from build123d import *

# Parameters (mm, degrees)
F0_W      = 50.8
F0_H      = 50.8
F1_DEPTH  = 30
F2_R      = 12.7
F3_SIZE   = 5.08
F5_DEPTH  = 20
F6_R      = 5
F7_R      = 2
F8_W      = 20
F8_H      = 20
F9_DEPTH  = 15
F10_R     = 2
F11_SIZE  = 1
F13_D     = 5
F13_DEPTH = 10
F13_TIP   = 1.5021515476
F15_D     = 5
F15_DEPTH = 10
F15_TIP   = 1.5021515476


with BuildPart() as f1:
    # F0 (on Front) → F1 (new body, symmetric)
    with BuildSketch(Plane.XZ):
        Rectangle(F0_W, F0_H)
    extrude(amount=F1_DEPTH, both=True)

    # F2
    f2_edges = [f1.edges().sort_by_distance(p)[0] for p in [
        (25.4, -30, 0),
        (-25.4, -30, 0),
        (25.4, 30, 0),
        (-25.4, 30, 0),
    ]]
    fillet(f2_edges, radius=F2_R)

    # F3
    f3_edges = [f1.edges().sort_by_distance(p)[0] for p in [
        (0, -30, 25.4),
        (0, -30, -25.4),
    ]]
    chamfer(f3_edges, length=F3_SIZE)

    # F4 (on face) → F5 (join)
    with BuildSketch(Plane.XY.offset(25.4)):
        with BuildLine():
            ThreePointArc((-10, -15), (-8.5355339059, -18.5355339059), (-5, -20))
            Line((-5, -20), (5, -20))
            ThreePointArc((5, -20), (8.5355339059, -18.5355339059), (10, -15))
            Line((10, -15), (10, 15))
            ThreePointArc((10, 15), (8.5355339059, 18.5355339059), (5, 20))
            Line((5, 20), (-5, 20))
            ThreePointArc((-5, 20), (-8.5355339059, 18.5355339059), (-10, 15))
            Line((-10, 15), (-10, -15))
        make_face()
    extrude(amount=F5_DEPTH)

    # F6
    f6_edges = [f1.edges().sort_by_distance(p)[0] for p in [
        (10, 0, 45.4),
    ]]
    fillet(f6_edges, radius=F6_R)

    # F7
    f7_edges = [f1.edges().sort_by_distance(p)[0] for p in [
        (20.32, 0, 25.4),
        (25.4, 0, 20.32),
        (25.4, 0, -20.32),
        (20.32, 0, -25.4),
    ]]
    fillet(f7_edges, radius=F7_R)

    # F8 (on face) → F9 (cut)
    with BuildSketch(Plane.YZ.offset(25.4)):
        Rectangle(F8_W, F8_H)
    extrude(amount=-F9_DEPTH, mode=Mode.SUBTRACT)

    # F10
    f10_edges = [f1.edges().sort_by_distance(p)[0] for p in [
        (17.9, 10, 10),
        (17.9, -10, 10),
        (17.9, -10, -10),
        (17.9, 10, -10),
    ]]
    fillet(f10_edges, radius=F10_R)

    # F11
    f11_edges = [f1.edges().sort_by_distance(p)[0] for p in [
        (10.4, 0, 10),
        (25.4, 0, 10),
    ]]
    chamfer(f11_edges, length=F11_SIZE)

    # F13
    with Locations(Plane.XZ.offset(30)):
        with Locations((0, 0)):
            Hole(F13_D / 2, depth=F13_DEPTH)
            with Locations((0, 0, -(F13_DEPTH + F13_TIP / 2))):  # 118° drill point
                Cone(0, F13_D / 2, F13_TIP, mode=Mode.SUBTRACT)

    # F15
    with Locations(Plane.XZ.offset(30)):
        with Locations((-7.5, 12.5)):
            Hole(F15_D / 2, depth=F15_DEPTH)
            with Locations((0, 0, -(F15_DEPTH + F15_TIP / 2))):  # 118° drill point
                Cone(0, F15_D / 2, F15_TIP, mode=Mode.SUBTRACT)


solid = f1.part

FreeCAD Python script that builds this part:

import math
import FreeCAD as App
import Part
import Sketcher
Q = App.Units.Quantity


def edges_at(feature, points):
    """Names of the edges that pass closest to the given points."""
    edges = feature.Shape.Edges
    near = lambda p: min(range(len(edges)), key=lambda i: edges[i].distToShape(Part.Vertex(*p))[0])
    return sorted({f"Edge{near(p) + 1}" for p in points})


def add_polygon(sketch, points):
    """Adds a closed chain of lines whose ends are joined by coincident constraints."""
    first, n = sketch.GeometryCount, len(points)
    for a, b in zip(points, points[1:] + points[:1]):
        sketch.addGeometry(Part.LineSegment(App.Vector(*a, 0), App.Vector(*b, 0)), False)
    for i in range(n):
        sketch.addConstraint(Sketcher.Constraint("Coincident", first + i, 2, first + (i + 1) % n, 1))

doc = App.newDocument("Part")
params = doc.addObject("Spreadsheet::Sheet", "Params")
for row, (alias, value) in enumerate([
    ("sketch1_width", "50.8 mm"),
    ("pad1_length", "60 mm"),
    ("fillet_radius", "12.7 mm"),
    ("chamfer_size", "5.08 mm"),
    ("sketch2_radius", "5 mm"),
    ("sketch2_width", "10 mm"),
    ("sketch2_height", "30 mm"),
    ("pad2_length", "20 mm"),
    ("fillet2_radius", "5 mm"),
    ("fillet3_radius", "2 mm"),
    ("sketch3_width", "20 mm"),
    ("pocket1_length", "15 mm"),
    ("fillet4_radius", "2 mm"),
    ("chamfer2_size", "1 mm"),
    ("sketch4_diameter", "5 mm"),
    ("hole_diameter", "5 mm"),
    ("hole_depth", "10 mm"),
    ("sketch5_diameter", "5 mm"),
    ("hole2_diameter", "5 mm"),
    ("hole2_depth", "10 mm"),
], start=1):
    params.set(f"A{row}", alias)
    params.set(f"B{row}", "=" + value)
    params.setAlias(f"B{row}", alias)

body = doc.addObject("PartDesign::Body", "Body")

# Sketch on XZ plane
sketch1 = body.newObject("Sketcher::SketchObject", "Sketch")
sketch1.AttachmentSupport = (doc.getObject("XZ_Plane"), [""])
sketch1.MapMode = "FlatFace"
add_polygon(sketch1, [(-25, 25), (-25, -25), (25, -25), (25, 25)])  # lines 0-3
sketch1.addConstraint(Sketcher.Constraint("Vertical", 0))
sketch1.addConstraint(Sketcher.Constraint("Horizontal", 1))
sketch1.addConstraint(Sketcher.Constraint("Vertical", 2))
sketch1.addConstraint(Sketcher.Constraint("Horizontal", 3))
sketch1.addConstraint(Sketcher.Constraint("Symmetric", 0, 2, 2, 2, -1, 1))
sketch1.addConstraint(Sketcher.Constraint("Equal", 3, 0))
sketch1.addConstraint(Sketcher.Constraint("DistanceX", 1, 1, 1, 2, Q("50.8 mm")))
sketch1.setExpression("Constraints[10]", "Params.sketch1_width")
pad1 = body.newObject("PartDesign::Pad", "Pad")
pad1.Profile = sketch1
pad1.setExpression("Length", "Params.pad1_length")
pad1.Midplane = True
doc.recompute()

fillet = body.newObject("PartDesign::Fillet", "Fillet")
fillet.Base = (pad1, edges_at(pad1, [
    (25.4, -30, 0),
    (-25.4, -30, 0),
    (25.4, 30, 0),
    (-25.4, 30, 0),
]))
fillet.setExpression("Radius", "Params.fillet_radius")
doc.recompute()

chamfer = body.newObject("PartDesign::Chamfer", "Chamfer")
chamfer.Base = (fillet, edges_at(fillet, [(0, -30, 25.4), (0, -30, -25.4)]))
chamfer.setExpression("Size", "Params.chamfer_size")

# Sketch on XY plane
sketch2 = body.newObject("Sketcher::SketchObject", "Sketch001")
sketch2.AttachmentSupport = (doc.getObject("XY_Plane"), [""])
sketch2.MapMode = "FlatFace"
sketch2.AttachmentOffset = App.Placement(App.Vector(0, 0, 25.4), App.Rotation())
sketch2.addGeometry(Part.ArcOfCircle(Part.Circle(App.Vector(-5, -15, 0), App.Vector(0, 0, 1), 5), math.radians(180), math.radians(270)), False)
sketch2.addGeometry(Part.LineSegment(App.Vector(-5, -20, 0), App.Vector(5, -20, 0)), False)
sketch2.addGeometry(Part.ArcOfCircle(Part.Circle(App.Vector(5, -15, 0), App.Vector(0, 0, 1), 5), math.radians(-90), math.radians(0)), False)
sketch2.addGeometry(Part.LineSegment(App.Vector(10, -15, 0), App.Vector(10, 15, 0)), False)
sketch2.addGeometry(Part.ArcOfCircle(Part.Circle(App.Vector(5, 15, 0), App.Vector(0, 0, 1), 5), math.radians(0), math.radians(90)), False)
sketch2.addGeometry(Part.LineSegment(App.Vector(5, 20, 0), App.Vector(-5, 20, 0)), False)
sketch2.addGeometry(Part.ArcOfCircle(Part.Circle(App.Vector(-5, 15, 0), App.Vector(0, 0, 1), 5), math.radians(90), math.radians(180)), False)
sketch2.addGeometry(Part.LineSegment(App.Vector(-10, 15, 0), App.Vector(-10, -15, 0)), False)
sketch2.addConstraint(Sketcher.Constraint("Tangent", 0, 2, 1, 1))
sketch2.addConstraint(Sketcher.Constraint("Tangent", 1, 2, 2, 1))
sketch2.addConstraint(Sketcher.Constraint("Tangent", 2, 2, 3, 1))
sketch2.addConstraint(Sketcher.Constraint("Tangent", 3, 2, 4, 1))
sketch2.addConstraint(Sketcher.Constraint("Tangent", 4, 2, 5, 1))
sketch2.addConstraint(Sketcher.Constraint("Tangent", 5, 2, 6, 1))
sketch2.addConstraint(Sketcher.Constraint("Tangent", 6, 2, 7, 1))
sketch2.addConstraint(Sketcher.Constraint("Tangent", 7, 2, 0, 1))
sketch2.addConstraint(Sketcher.Constraint("Horizontal", 1))
sketch2.addConstraint(Sketcher.Constraint("Vertical", 3))
sketch2.addConstraint(Sketcher.Constraint("Horizontal", 5))
sketch2.addConstraint(Sketcher.Constraint("Vertical", 7))
sketch2.addConstraint(Sketcher.Constraint("Equal", 0, 2))
sketch2.addConstraint(Sketcher.Constraint("Equal", 2, 4))
sketch2.addConstraint(Sketcher.Constraint("Equal", 4, 6))
sketch2.addConstraint(Sketcher.Constraint("Symmetric", 0, 3, 4, 3, -1, 1))
sketch2.addConstraint(Sketcher.Constraint("Radius", 0, Q("5 mm")))
sketch2.addConstraint(Sketcher.Constraint("DistanceX", 1, 1, 1, 2, Q("10 mm")))
sketch2.addConstraint(Sketcher.Constraint("DistanceY", 3, 1, 3, 2, Q("30 mm")))
sketch2.setExpression("Constraints[16]", "Params.sketch2_radius")
sketch2.setExpression("Constraints[17]", "Params.sketch2_width")
sketch2.setExpression("Constraints[18]", "Params.sketch2_height")
pad2 = body.newObject("PartDesign::Pad", "Pad001")
pad2.Profile = sketch2
pad2.setExpression("Length", "Params.pad2_length")
doc.recompute()

fillet2 = body.newObject("PartDesign::Fillet", "Fillet001")
fillet2.Base = (pad2, edges_at(pad2, [(10, 0, 45.4)]))
fillet2.setExpression("Radius", "Params.fillet2_radius")
doc.recompute()

fillet3 = body.newObject("PartDesign::Fillet", "Fillet002")
fillet3.Base = (fillet2, edges_at(fillet2, [
    (20.32, 0, 25.4),
    (25.4, 0, 20.32),
    (25.4, 0, -20.32),
    (20.32, 0, -25.4),
]))
fillet3.setExpression("Radius", "Params.fillet3_radius")

# Sketch on YZ plane
sketch3 = body.newObject("Sketcher::SketchObject", "Sketch002")
sketch3.AttachmentSupport = (doc.getObject("YZ_Plane"), [""])
sketch3.MapMode = "FlatFace"
sketch3.AttachmentOffset = App.Placement(App.Vector(0, 0, 25.4), App.Rotation())
add_polygon(sketch3, [(-10, 10), (-10, -10), (10, -10), (10, 10)])  # lines 0-3
sketch3.addConstraint(Sketcher.Constraint("Vertical", 0))
sketch3.addConstraint(Sketcher.Constraint("Horizontal", 1))
sketch3.addConstraint(Sketcher.Constraint("Vertical", 2))
sketch3.addConstraint(Sketcher.Constraint("Horizontal", 3))
sketch3.addConstraint(Sketcher.Constraint("Symmetric", 0, 2, 2, 2, -1, 1))
sketch3.addConstraint(Sketcher.Constraint("Equal", 3, 0))
sketch3.addConstraint(Sketcher.Constraint("DistanceX", 1, 1, 1, 2, Q("20 mm")))
sketch3.setExpression("Constraints[10]", "Params.sketch3_width")
pocket1 = body.newObject("PartDesign::Pocket", "Pocket")
pocket1.Profile = sketch3
pocket1.setExpression("Length", "Params.pocket1_length")
doc.recompute()

fillet4 = body.newObject("PartDesign::Fillet", "Fillet003")
fillet4.Base = (pocket1, edges_at(pocket1, [
    (17.9, 10, 10),
    (17.9, -10, 10),
    (17.9, -10, -10),
    (17.9, 10, -10),
]))
fillet4.setExpression("Radius", "Params.fillet4_radius")
doc.recompute()

chamfer2 = body.newObject("PartDesign::Chamfer", "Chamfer001")
chamfer2.Base = (fillet4, edges_at(fillet4, [(10.4, 0, 10), (25.4, 0, 10)]))
chamfer2.setExpression("Size", "Params.chamfer2_size")

# Sketch on XZ plane
sketch4 = body.newObject("Sketcher::SketchObject", "Sketch003")
sketch4.AttachmentSupport = (doc.getObject("XZ_Plane"), [""])
sketch4.MapMode = "FlatFace"
sketch4.AttachmentOffset = App.Placement(App.Vector(0, 0, 30), App.Rotation())
sketch4.addGeometry(Part.Circle(App.Vector(0, 0, 0), App.Vector(0, 0, 1), 2.5), False)
sketch4.addConstraint(Sketcher.Constraint("Coincident", 0, 3, -1, 1))
sketch4.addConstraint(Sketcher.Constraint("Diameter", 0, Q("5 mm")))
sketch4.setExpression("Constraints[1]", "Params.sketch4_diameter")
doc.recompute()
hole = body.newObject("PartDesign::Hole", "Hole")
hole.Profile = sketch4
hole.ThreadType = "None"
hole.setExpression("Diameter", "Params.hole_diameter")
hole.DepthType = "Dimension"
hole.setExpression("Depth", "Params.hole_depth")
hole.DrillPoint = "Angled"
hole.DrillPointAngle = 118

# Sketch on XZ plane
sketch5 = body.newObject("Sketcher::SketchObject", "Sketch004")
sketch5.AttachmentSupport = (doc.getObject("XZ_Plane"), [""])
sketch5.MapMode = "FlatFace"
sketch5.AttachmentOffset = App.Placement(App.Vector(0, 0, 30), App.Rotation())
sketch5.addGeometry(Part.Circle(App.Vector(-7.5, 12.5, 0), App.Vector(0, 0, 1), 2.5), False)
sketch5.addConstraint(Sketcher.Constraint("Diameter", 0, Q("5 mm")))
sketch5.addConstraint(Sketcher.Constraint("DistanceX", 0, 3, -1, 1, Q("7.5 mm")))
sketch5.addConstraint(Sketcher.Constraint("DistanceY", -1, 1, 0, 3, Q("12.5 mm")))
sketch5.setExpression("Constraints[0]", "Params.sketch5_diameter")
doc.recompute()
hole2 = body.newObject("PartDesign::Hole", "Hole001")
hole2.Profile = sketch5
hole2.ThreadType = "None"
hole2.setExpression("Diameter", "Params.hole2_diameter")
hole2.DepthType = "Dimension"
hole2.setExpression("Depth", "Params.hole2_depth")
hole2.DrillPoint = "Angled"
hole2.DrillPointAngle = 118

doc.recompute()
